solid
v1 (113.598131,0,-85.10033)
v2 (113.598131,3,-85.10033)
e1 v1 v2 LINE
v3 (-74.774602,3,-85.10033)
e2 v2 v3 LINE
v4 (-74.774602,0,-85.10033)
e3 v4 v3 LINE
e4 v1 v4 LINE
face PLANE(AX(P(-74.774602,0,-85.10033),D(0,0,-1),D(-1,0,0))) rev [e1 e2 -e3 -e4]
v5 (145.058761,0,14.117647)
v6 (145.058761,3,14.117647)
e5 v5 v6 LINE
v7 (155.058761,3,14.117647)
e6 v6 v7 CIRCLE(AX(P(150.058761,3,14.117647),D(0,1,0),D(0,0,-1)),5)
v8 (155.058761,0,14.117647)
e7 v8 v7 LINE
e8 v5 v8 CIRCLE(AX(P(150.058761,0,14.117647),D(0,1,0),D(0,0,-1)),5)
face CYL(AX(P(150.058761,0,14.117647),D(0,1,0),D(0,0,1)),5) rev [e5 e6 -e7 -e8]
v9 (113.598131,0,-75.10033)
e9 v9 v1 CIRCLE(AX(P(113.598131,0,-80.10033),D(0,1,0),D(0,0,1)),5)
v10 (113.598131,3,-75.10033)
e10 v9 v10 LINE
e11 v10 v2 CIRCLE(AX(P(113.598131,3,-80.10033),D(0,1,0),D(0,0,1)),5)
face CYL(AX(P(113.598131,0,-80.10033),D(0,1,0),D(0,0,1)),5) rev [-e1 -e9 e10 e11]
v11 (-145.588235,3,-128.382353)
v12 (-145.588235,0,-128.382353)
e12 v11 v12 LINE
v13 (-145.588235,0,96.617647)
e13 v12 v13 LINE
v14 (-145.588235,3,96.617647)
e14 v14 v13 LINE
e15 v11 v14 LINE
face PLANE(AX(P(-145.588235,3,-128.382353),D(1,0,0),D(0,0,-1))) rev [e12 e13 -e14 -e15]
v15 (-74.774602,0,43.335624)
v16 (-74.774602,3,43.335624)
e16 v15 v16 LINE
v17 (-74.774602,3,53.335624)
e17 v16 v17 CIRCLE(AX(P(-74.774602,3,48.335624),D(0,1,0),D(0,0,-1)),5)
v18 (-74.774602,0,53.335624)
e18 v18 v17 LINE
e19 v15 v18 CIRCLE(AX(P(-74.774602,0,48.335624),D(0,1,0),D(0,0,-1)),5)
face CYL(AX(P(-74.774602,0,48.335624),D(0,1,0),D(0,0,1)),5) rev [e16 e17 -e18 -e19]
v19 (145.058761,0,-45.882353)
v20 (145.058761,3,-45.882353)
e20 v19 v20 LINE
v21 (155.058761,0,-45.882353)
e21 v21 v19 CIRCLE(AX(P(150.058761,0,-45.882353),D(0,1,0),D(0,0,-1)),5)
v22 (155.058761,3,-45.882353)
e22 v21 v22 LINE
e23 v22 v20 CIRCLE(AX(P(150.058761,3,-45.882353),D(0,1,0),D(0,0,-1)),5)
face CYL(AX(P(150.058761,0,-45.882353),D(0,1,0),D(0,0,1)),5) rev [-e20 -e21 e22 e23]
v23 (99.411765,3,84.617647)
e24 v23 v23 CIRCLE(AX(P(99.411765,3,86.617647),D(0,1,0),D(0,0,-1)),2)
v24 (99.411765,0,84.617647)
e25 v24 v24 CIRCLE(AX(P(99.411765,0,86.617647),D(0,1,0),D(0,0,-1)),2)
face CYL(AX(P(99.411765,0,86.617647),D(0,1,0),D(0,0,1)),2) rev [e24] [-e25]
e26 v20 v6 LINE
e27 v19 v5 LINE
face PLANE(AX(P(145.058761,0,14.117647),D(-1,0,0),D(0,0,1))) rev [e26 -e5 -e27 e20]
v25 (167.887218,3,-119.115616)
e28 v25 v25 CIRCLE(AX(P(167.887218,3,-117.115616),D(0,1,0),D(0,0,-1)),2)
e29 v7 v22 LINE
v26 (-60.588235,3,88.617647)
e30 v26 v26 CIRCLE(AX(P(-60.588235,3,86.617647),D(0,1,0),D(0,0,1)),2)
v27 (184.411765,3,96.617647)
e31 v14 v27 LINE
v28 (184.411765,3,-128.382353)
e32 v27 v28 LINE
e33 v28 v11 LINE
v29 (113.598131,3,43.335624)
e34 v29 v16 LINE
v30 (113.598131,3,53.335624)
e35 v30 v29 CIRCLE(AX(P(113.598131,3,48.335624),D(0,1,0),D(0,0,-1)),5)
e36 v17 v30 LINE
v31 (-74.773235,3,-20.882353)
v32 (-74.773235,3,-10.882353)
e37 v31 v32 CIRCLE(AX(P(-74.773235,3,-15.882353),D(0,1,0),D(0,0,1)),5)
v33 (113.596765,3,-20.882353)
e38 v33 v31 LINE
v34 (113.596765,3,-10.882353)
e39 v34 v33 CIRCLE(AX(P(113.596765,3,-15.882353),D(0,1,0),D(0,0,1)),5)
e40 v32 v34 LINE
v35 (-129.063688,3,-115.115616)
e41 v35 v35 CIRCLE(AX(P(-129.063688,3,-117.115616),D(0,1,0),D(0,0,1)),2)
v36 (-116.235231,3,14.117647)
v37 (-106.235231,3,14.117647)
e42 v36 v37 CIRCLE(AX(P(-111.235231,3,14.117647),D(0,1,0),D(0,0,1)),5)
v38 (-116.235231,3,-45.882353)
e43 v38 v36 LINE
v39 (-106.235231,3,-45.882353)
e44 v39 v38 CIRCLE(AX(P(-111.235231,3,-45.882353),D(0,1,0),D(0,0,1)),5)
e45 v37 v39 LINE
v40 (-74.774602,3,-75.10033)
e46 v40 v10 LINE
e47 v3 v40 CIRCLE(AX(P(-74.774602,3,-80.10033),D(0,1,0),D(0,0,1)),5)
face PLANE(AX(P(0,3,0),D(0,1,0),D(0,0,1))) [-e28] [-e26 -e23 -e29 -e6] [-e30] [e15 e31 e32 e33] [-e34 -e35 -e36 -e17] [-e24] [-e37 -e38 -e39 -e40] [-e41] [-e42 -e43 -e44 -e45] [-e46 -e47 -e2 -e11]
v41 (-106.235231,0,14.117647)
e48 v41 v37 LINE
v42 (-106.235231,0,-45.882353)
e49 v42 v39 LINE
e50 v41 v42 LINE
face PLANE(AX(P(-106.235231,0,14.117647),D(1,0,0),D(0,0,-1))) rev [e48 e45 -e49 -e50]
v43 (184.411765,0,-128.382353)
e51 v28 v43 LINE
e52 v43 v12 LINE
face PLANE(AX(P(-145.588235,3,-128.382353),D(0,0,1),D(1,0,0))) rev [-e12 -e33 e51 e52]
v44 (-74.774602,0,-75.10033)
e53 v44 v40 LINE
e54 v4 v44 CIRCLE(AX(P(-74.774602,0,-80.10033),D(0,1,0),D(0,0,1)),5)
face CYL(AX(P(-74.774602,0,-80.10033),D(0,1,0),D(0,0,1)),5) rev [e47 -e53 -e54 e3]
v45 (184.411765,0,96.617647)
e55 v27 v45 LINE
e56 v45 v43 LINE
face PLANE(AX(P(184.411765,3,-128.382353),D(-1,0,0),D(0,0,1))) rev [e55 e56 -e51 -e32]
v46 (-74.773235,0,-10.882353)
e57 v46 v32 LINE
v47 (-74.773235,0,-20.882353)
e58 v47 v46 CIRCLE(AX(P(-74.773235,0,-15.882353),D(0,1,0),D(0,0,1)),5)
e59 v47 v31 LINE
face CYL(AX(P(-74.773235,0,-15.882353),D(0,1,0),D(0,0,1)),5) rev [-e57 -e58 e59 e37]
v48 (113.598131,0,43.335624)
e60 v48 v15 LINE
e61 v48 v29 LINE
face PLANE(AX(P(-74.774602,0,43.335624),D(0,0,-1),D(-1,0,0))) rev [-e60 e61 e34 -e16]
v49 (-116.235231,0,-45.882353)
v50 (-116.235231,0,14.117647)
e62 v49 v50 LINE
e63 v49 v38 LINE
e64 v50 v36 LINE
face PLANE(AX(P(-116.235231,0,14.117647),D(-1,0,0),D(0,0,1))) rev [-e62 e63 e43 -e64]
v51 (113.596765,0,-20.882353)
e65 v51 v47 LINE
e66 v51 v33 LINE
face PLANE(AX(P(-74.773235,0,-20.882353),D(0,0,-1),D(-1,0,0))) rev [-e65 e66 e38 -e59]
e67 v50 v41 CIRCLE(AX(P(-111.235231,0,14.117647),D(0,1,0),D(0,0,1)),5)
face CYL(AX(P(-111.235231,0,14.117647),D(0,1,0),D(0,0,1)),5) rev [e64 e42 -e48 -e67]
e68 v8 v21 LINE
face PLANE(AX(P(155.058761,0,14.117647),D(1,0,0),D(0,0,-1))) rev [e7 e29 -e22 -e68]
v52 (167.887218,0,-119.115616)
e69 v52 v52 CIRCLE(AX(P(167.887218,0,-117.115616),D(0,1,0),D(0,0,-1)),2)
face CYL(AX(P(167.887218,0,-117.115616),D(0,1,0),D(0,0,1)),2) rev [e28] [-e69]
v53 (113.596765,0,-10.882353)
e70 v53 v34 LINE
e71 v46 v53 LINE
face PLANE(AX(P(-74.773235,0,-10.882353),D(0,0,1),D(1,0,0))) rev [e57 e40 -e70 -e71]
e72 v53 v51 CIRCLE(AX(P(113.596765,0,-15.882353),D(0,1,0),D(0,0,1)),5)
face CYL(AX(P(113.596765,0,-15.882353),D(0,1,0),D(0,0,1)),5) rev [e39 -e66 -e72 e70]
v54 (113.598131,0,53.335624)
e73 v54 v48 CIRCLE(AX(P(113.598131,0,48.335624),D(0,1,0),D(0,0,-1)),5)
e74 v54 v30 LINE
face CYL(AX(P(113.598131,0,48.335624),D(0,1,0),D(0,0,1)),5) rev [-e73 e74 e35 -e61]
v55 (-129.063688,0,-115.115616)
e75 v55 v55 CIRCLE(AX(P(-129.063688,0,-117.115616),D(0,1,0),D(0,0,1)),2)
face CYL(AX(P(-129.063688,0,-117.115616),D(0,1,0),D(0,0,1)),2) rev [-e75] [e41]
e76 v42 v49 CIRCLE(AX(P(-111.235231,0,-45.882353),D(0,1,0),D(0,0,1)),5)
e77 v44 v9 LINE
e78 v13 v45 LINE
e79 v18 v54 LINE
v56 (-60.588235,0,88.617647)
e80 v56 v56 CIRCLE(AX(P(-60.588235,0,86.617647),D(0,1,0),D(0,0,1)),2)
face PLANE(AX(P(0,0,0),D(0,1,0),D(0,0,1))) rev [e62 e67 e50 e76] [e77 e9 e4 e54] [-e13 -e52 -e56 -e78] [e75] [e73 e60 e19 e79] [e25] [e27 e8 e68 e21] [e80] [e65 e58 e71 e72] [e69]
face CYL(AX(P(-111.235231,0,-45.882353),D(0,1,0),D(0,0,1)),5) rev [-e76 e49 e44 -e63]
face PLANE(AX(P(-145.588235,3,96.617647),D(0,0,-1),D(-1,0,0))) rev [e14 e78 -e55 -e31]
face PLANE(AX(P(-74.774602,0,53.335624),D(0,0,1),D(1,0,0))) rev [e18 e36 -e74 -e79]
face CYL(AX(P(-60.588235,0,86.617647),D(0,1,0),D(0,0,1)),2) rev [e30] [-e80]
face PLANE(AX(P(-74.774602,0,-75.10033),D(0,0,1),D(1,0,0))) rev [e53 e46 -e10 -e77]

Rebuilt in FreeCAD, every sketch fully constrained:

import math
import FreeCAD as App
import Part
import Sketcher

V = App.Vector
Q = App.Units.Quantity

doc = App.newDocument("Part")
body = doc.addObject("PartDesign::Body", "Body")

# Sketch on XZ plane
sketch1 = body.newObject("Sketcher::SketchObject", "Sketch")
sketch1.AttachmentSupport = (doc.getObject("XZ_Plane"), [""])
sketch1.MapMode = "FlatFace"
sketch1.addGeometry([
    Part.LineSegment(V(-146, -128, 0), V(-146, 97, 0)),
    Part.LineSegment(V(-146, 97, 0), V(184, 97, 0)),
    Part.LineSegment(V(184, 97, 0), V(184, -128, 0)),
    Part.LineSegment(V(184, -128, 0), V(-146, -128, 0)),
], False)
sketch1.addConstraint([
    Sketcher.Constraint("Coincident", 0, 2, 1, 1),
    Sketcher.Constraint("Coincident", 1, 2, 2, 1),
    Sketcher.Constraint("Coincident", 2, 2, 3, 1),
    Sketcher.Constraint("Coincident", 3, 2, 0, 1),
    Sketcher.Constraint("Vertical", 0),
    Sketcher.Constraint("Horizontal", 1),
    Sketcher.Constraint("Vertical", 2),
    Sketcher.Constraint("Horizontal", 3),
    Sketcher.Constraint("DistanceX", 1, 1, 1, 2, Q("330 mm")),
    Sketcher.Constraint("DistanceY", 0, 1, 0, 2, Q("225 mm")),
    Sketcher.Constraint("DistanceX", 0, 2, -1, 1, Q("145.588235 mm")),
    Sketcher.Constraint("DistanceY", -1, 1, 0, 2, Q("96.617647 mm")),
])
pad1 = body.newObject("PartDesign::Pad", "Pad")
pad1.Profile = sketch1
pad1.Length = 3
pad1.Reversed = True

# Sketch on XZ plane
sketch2 = body.newObject("Sketcher::SketchObject", "Sketch001")
sketch2.AttachmentSupport = (doc.getObject("XZ_Plane"), [""])
sketch2.MapMode = "FlatFace"
sketch2.AttachmentOffset = App.Placement(V(0, 0, -3), App.Rotation())
sketch2.addGeometry([
    Part.Circle(V(-129.1, -117.1, 0), V(0, 0, 1), 2),
    Part.Circle(V(167.9, -117.1, 0), V(0, 0, 1), 2),
    Part.Circle(V(-60.6, 86.6, 0), V(0, 0, 1), 2),
    Part.Circle(V(99.4, 86.6, 0), V(0, 0, 1), 2),
], False)
sketch2.addConstraint([
    Sketcher.Constraint("Equal", 0, 1),
    Sketcher.Constraint("Equal", 1, 2),
    Sketcher.Constraint("Equal", 2, 3),
    Sketcher.Constraint("Horizontal", 0, 3, 1, 3),
    Sketcher.Constraint("Horizontal", 2, 3, 3, 3),
    Sketcher.Constraint("Diameter", 0, Q("4 mm")),
    Sketcher.Constraint("DistanceX", 2, 3, 3, 3, Q("160 mm")),
    Sketcher.Constraint("DistanceX", 0, 3, -1, 1, Q("129.063688 mm")),
    Sketcher.Constraint("DistanceY", 0, 3, -1, 1, Q("117.115616 mm")),
    Sketcher.Constraint("DistanceX", -1, 1, 1, 3, Q("167.887218 mm")),
    Sketcher.Constraint("DistanceX", 2, 3, -1, 1, Q("60.588235 mm")),
    Sketcher.Constraint("DistanceY", -1, 1, 2, 3, Q("86.617647 mm")),
])
pocket1 = body.newObject("PartDesign::Pocket", "Pocket")
pocket1.Profile = sketch2
pocket1.Type = "ThroughAll"
pocket1.Reversed = True

# Sketch on XZ plane
sketch3 = body.newObject("Sketcher::SketchObject", "Sketch002")
sketch3.AttachmentSupport = (doc.getObject("XZ_Plane"), [""])
sketch3.MapMode = "FlatFace"
sketch3.AttachmentOffset = App.Placement(V(0, 0, -3), App.Rotation())
sketch3.addGeometry([
    Part.LineSegment(V(-116, -46, 0), V(-116, 14, 0)),  # 0
    Part.ArcOfCircle(Part.Circle(V(-111, 14, 0), V(0, 0, 1), 5), math.radians(0), math.radians(180)),  # 1
    Part.LineSegment(V(-106, 14, 0), V(-106, -46, 0)),  # 2
    Part.ArcOfCircle(Part.Circle(V(-111, -46, 0), V(0, 0, 1), 5), math.radians(180), math.radians(360)),  # 3
    Part.LineSegment(V(155, 14, 0), V(155, -46, 0)),  # 4
    Part.ArcOfCircle(Part.Circle(V(150, -46, 0), V(0, 0, 1), 5), math.radians(180), math.radians(360)),  # 5
    Part.LineSegment(V(145, -46, 0), V(145, 14, 0)),  # 6
    Part.ArcOfCircle(Part.Circle(V(150, 14, 0), V(0, 0, 1), 5), math.radians(0), math.radians(180)),  # 7
], False)
sketch3.addConstraint([
    Sketcher.Constraint("Tangent", 0, 2, 1, 2),
    Sketcher.Constraint("Tangent", 1, 1, 2, 1),
    Sketcher.Constraint("Tangent", 2, 2, 3, 2),
    Sketcher.Constraint("Tangent", 3, 1, 0, 1),
    Sketcher.Constraint("Tangent", 4, 2, 5, 2),
    Sketcher.Constraint("Tangent", 5, 1, 6, 1),
    Sketcher.Constraint("Tangent", 6, 2, 7, 2),
    Sketcher.Constraint("Tangent", 7, 1, 4, 1),
    Sketcher.Constraint("Vertical", 0),
    Sketcher.Constraint("Vertical", 2),
    Sketcher.Constraint("Vertical", 4),
    Sketcher.Constraint("Vertical", 6),
    Sketcher.Constraint("Equal", 3, 5),
    Sketcher.Constraint("Horizontal", 3, 3, 5, 3),
    Sketcher.Constraint("Horizontal", 1, 3, 7, 3),
    Sketcher.Constraint("Radius", 1, Q("5 mm")),
    Sketcher.Constraint("DistanceY", 0, 1, 0, 2, Q("60 mm")),
    Sketcher.Constraint("DistanceX", 1, 3, -1, 1, Q("111.235231 mm")),
    Sketcher.Constraint("DistanceX", -1, 1, 5, 3, Q("150.058761 mm")),
    Sketcher.Constraint("DistanceY", -1, 1, 1, 3, Q("14.117647 mm")),
])
pocket2 = body.newObject("PartDesign::Pocket", "Pocket001")
pocket2.Profile = sketch3
pocket2.Type = "ThroughAll"
pocket2.Reversed = True

# Sketch on XZ plane
sketch4 = body.newObject("Sketcher::SketchObject", "Sketch003")
sketch4.AttachmentSupport = (doc.getObject("XZ_Plane"), [""])
sketch4.MapMode = "FlatFace"
sketch4.AttachmentOffset = App.Placement(V(0, 0, -3), App.Rotation())
sketch4.addGeometry([
    Part.LineSegment(V(114, -85, 0), V(-75, -85, 0)),  # 0
    Part.ArcOfCircle(Part.Circle(V(-75, -80, 0), V(0, 0, 1), 5), math.radians(90), math.radians(270)),  # 1
    Part.LineSegment(V(-75, -75, 0), V(114, -75, 0)),  # 2
    Part.ArcOfCircle(Part.Circle(V(114, -80, 0), V(0, 0, 1), 5), math.radians(-90), math.radians(90)),  # 3
    Part.LineSegment(V(-75, 53, 0), V(114, 53, 0)),  # 4
    Part.ArcOfCircle(Part.Circle(V(114, 48, 0), V(0, 0, 1), 5), math.radians(-90), math.radians(90)),  # 5
    Part.LineSegment(V(114, 43, 0), V(-75, 43, 0)),  # 6
    Part.ArcOfCircle(Part.Circle(V(-75, 48, 0), V(0, 0, 1), 5), math.radians(90), math.radians(270)),  # 7
], False)
sketch4.addConstraint([
    Sketcher.Constraint("Tangent", 0, 2, 1, 2),
    Sketcher.Constraint("Tangent", 1, 1, 2, 1),
    Sketcher.Constraint("Tangent", 2, 2, 3, 2),
    Sketcher.Constraint("Tangent", 3, 1, 0, 1),
    Sketcher.Constraint("Tangent", 4, 2, 5, 2),
    Sketcher.Constraint("Tangent", 5, 1, 6, 1),
    Sketcher.Constraint("Tangent", 6, 2, 7, 2),
    Sketcher.Constraint("Tangent", 7, 1, 4, 1),
    Sketcher.Constraint("Horizontal", 0),
    Sketcher.Constraint("Horizontal", 2),
    Sketcher.Constraint("Horizontal", 4),
    Sketcher.Constraint("Horizontal", 6),
    Sketcher.Constraint("Equal", 3, 5),
    Sketcher.Constraint("Vertical", 3, 3, 5, 3),
    Sketcher.Constraint("Vertical", 1, 3, 7, 3),
    Sketcher.Constraint("Radius", 1, Q("5 mm")),
    Sketcher.Constraint("DistanceX", 0, 2, 0, 1, Q("188.372734 mm")),
    Sketcher.Constraint("DistanceY", 1, 3, -1, 1, Q("80.10033 mm")),
    Sketcher.Constraint("DistanceX", -1, 1, 3, 3, Q("113.598131 mm")),
    Sketcher.Constraint("DistanceY", -1, 1, 5, 3, Q("48.335624 mm")),
])
pocket3 = body.newObject("PartDesign::Pocket", "Pocket002")
pocket3.Profile = sketch4
pocket3.Type = "ThroughAll"
pocket3.Reversed = True

# Sketch on XZ plane
sketch5 = body.newObject("Sketcher::SketchObject", "Sketch004")
sketch5.AttachmentSupport = (doc.getObject("XZ_Plane"), [""])
sketch5.MapMode = "FlatFace"
sketch5.AttachmentOffset = App.Placement(V(0, 0, -3), App.Rotation())
sketch5.addGeometry([
    Part.LineSegment(V(114, -21, 0), V(-75, -21, 0)),
    Part.ArcOfCircle(Part.Circle(V(-75, -16, 0), V(0, 0, 1), 5), math.radians(90), math.radians(270)),
    Part.LineSegment(V(-75, -11, 0), V(114, -11, 0)),
    Part.ArcOfCircle(Part.Circle(V(114, -16, 0), V(0, 0, 1), 5), math.radians(-90), math.radians(90)),
], False)
sketch5.addConstraint([
    Sketcher.Constraint("Tangent", 0, 2, 1, 2),
    Sketcher.Constraint("Tangent", 1, 1, 2, 1),
    Sketcher.Constraint("Tangent", 2, 2, 3, 2),
    Sketcher.Constraint("Tangent", 3, 1, 0, 1),
    Sketcher.Constraint("Horizontal", 0),
    Sketcher.Constraint("Horizontal", 2),
    Sketcher.Constraint("Radius", 1, Q("5 mm")),
    Sketcher.Constraint("DistanceX", 0, 2, 0, 1, Q("188.37 mm")),
    Sketcher.Constraint("DistanceX", 1, 3, -1, 1, Q("74.773235 mm")),
    Sketcher.Constraint("DistanceY", 1, 3, -1, 1, Q("15.882353 mm")),
])
pocket4 = body.newObject("PartDesign::Pocket", "Pocket003")
pocket4.Profile = sketch5
pocket4.Type = "ThroughAll"
pocket4.Reversed = True

doc.recompute()
